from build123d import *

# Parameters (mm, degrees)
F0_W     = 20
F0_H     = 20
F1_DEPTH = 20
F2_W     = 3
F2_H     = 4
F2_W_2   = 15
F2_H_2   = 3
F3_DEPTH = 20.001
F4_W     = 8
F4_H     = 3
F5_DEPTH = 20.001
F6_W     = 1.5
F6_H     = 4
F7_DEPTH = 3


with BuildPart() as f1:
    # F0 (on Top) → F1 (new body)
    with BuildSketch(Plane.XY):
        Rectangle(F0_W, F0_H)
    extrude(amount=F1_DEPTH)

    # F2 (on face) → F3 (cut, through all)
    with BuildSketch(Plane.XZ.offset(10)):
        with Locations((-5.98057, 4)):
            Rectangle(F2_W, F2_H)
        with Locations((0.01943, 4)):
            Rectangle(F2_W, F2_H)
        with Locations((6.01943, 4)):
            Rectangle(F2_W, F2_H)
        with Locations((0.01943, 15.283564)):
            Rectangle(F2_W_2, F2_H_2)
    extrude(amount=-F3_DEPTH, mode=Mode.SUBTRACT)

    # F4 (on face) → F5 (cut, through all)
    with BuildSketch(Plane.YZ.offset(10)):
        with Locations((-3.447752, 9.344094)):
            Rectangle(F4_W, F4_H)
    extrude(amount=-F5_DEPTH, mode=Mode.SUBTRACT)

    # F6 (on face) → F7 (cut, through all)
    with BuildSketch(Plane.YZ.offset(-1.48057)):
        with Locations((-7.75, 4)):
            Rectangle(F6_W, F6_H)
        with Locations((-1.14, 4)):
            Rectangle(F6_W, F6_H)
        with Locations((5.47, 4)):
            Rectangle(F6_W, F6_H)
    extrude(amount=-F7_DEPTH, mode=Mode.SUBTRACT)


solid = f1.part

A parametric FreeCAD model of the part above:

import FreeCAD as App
import Part
import Sketcher
Q = App.Units.Quantity


def add_polygon(sketch, points):
    """Adds a closed chain of lines whose ends are joined by coincident constraints."""
    first, n = sketch.GeometryCount, len(points)
    for a, b in zip(points, points[1:] + points[:1]):
        sketch.addGeometry(Part.LineSegment(App.Vector(*a, 0), App.Vector(*b, 0)), False)
    for i in range(n):
        sketch.addConstraint(Sketcher.Constraint("Coincident", first + i, 2, first + (i + 1) % n, 1))

doc = App.newDocument("Part")
body = doc.addObject("PartDesign::Body", "Body")

# Sketch on XY plane
sketch1 = body.newObject("Sketcher::SketchObject", "Sketch")
sketch1.AttachmentSupport = (doc.getObject("XY_Plane"), [""])
sketch1.MapMode = "FlatFace"
add_polygon(sketch1, [(-10, 10), (-10, -10), (10, -10), (10, 10)])  # lines 0-3
sketch1.addConstraint([
    Sketcher.Constraint("Vertical", 0),
    Sketcher.Constraint("Horizontal", 1),
    Sketcher.Constraint("Vertical", 2),
    Sketcher.Constraint("Horizontal", 3),
    Sketcher.Constraint("Symmetric", 0, 2, 2, 2, -1, 1),
    Sketcher.Constraint("Equal", 3, 0),
    Sketcher.Constraint("DistanceX", 1, 1, 1, 2, Q("20 mm")),
])
pad1 = body.newObject("PartDesign::Pad", "Pad")
pad1.Profile = sketch1
pad1.Length = 20

# Sketch on XZ plane
sketch2 = body.newObject("Sketcher::SketchObject", "Sketch001")
sketch2.AttachmentSupport = (doc.getObject("XZ_Plane"), [""])
sketch2.MapMode = "FlatFace"
sketch2.AttachmentOffset = App.Placement(App.Vector(0, 0, 10), App.Rotation())
add_polygon(sketch2, [(-7.5, 6), (-7.5, 2), (-4.5, 2), (-4.5, 6)])  # lines 0-3
add_polygon(sketch2, [(-1.5, 6), (-1.5, 2), (1.5, 2), (1.5, 6)])  # lines 4-7
add_polygon(sketch2, [(4.5, 6), (4.5, 2), (7.5, 2), (7.5, 6)])  # lines 8-11
add_polygon(sketch2, [(-7.5, 16.8), (-7.5, 13.8), (7.5, 13.8), (7.5, 16.8)])  # lines 12-15
sketch2.addConstraint([
    Sketcher.Constraint("Vertical", 0),
    Sketcher.Constraint("Horizontal", 1),
    Sketcher.Constraint("Vertical", 2),
    Sketcher.Constraint("Horizontal", 3),
    Sketcher.Constraint("Vertical", 4),
    Sketcher.Constraint("Horizontal", 5),
    Sketcher.Constraint("Vertical", 6),
    Sketcher.Constraint("Horizontal", 7),
    Sketcher.Constraint("Vertical", 8),
    Sketcher.Constraint("Horizontal", 9),
    Sketcher.Constraint("Vertical", 10),
    Sketcher.Constraint("Horizontal", 11),
    Sketcher.Constraint("Vertical", 12),
    Sketcher.Constraint("Horizontal", 13),
    Sketcher.Constraint("Vertical", 14),
    Sketcher.Constraint("Horizontal", 15),
    Sketcher.Constraint("Horizontal", 1, 2, 4, 2),
    Sketcher.Constraint("Horizontal", 3, 2, 6, 2),
    Sketcher.Constraint("Horizontal", 5, 2, 8, 2),
    Sketcher.Constraint("Horizontal", 7, 2, 10, 2),
    Sketcher.Constraint("Vertical", 3, 2, 12, 2),
    Sketcher.Constraint("Vertical", 10, 2, 13, 2),
    Sketcher.Constraint("Equal", 3, 5),
    Sketcher.Constraint("Equal", 7, 9),
    Sketcher.Constraint("Equal", 11, 12),
    Sketcher.Constraint("DistanceX", 1, 1, 1, 2, Q("3 mm")),
    Sketcher.Constraint("DistanceX", 13, 1, 13, 2, Q("15 mm")),
    Sketcher.Constraint("DistanceY", 0, 2, 0, 1, Q("4 mm")),
    Sketcher.Constraint("DistanceY", -1, 1, 0, 2, Q("2 mm")),
    Sketcher.Constraint("DistanceX", 1, 2, 4, 2, Q("3 mm")),
    Sketcher.Constraint("DistanceX", 0, 2, -1, 1, Q("7.48057 mm")),
    Sketcher.Constraint("DistanceY", -1, 1, 12, 2, Q("13.783564 mm")),
])
pocket1 = body.newObject("PartDesign::Pocket", "Pocket")
pocket1.Profile = sketch2
pocket1.Type = "ThroughAll"

# Sketch on YZ plane
sketch3 = body.newObject("Sketcher::SketchObject", "Sketch002")
sketch3.AttachmentSupport = (doc.getObject("YZ_Plane"), [""])
sketch3.MapMode = "FlatFace"
sketch3.AttachmentOffset = App.Placement(App.Vector(0, 0, 10), App.Rotation())
add_polygon(sketch3, [(-7.4, 10.8), (-7.4, 7.8), (0.6, 7.8), (0.6, 10.8)])  # lines 0-3
sketch3.addConstraint([
    Sketcher.Constraint("Vertical", 0),
    Sketcher.Constraint("Horizontal", 1),
    Sketcher.Constraint("Vertical", 2),
    Sketcher.Constraint("Horizontal", 3),
    Sketcher.Constraint("DistanceX", 1, 1, 1, 2, Q("8 mm")),
    Sketcher.Constraint("DistanceY", 0, 2, 0, 1, Q("3 mm")),
    Sketcher.Constraint("DistanceX", 0, 2, -1, 1, Q("7.447752 mm")),
    Sketcher.Constraint("DistanceY", -1, 1, 0, 2, Q("7.844094 mm")),
])
pocket2 = body.newObject("PartDesign::Pocket", "Pocket001")
pocket2.Profile = sketch3
pocket2.Type = "ThroughAll"

# Sketch on YZ plane
sketch4 = body.newObject("Sketcher::SketchObject", "Sketch003")
sketch4.AttachmentSupport = (doc.getObject("YZ_Plane"), [""])
sketch4.MapMode = "FlatFace"
sketch4.AttachmentOffset = App.Placement(App.Vector(0, 0, -1.48057), App.Rotation())
add_polygon(sketch4, [(-8.5, 6), (-8.5, 2), (-7, 2), (-7, 6)])  # lines 0-3
add_polygon(sketch4, [(-1.9, 6), (-1.9, 2), (-0.4, 2), (-0.4, 6)])  # lines 4-7
add_polygon(sketch4, [(4.7, 6), (4.7, 2), (6.2, 2), (6.2, 6)])  # lines 8-11
sketch4.addConstraint([
    Sketcher.Constraint("Vertical", 0),
    Sketcher.Constraint("Horizontal", 1),
    Sketcher.Constraint("Vertical", 2),
    Sketcher.Constraint("Horizontal", 3),
    Sketcher.Constraint("Vertical", 4),
    Sketcher.Constraint("Horizontal", 5),
    Sketcher.Constraint("Vertical", 6),
    Sketcher.Constraint("Horizontal", 7),
    Sketcher.Constraint("Vertical", 8),
    Sketcher.Constraint("Horizontal", 9),
    Sketcher.Constraint("Vertical", 10),
    Sketcher.Constraint("Horizontal", 11),
    Sketcher.Constraint("Horizontal", 1, 2, 4, 2),
    Sketcher.Constraint("Horizontal", 3, 2, 6, 2),
    Sketcher.Constraint("Horizontal", 5, 2, 8, 2),
    Sketcher.Constraint("Horizontal", 7, 2, 10, 2),
    Sketcher.Constraint("Equal", 3, 5),
    Sketcher.Constraint("Equal", 7, 9),
    Sketcher.Constraint("DistanceY", 0, 2, 0, 1, Q("4 mm")),
    Sketcher.Constraint("DistanceX", 1, 1, 1, 2, Q("1.5 mm")),
    Sketcher.Constraint("DistanceY", -1, 1, 0, 2, Q("2 mm")),
    Sketcher.Constraint("DistanceX", 1, 2, -1, 1, Q("7 mm")),
    Sketcher.Constraint("DistanceX", 4, 2, -1, 1, Q("1.89 mm")),
    Sketcher.Constraint("DistanceX", -1, 1, 8, 2, Q("4.72 mm")),
])
pocket3 = body.newObject("PartDesign::Pocket", "Pocket002")
pocket3.Profile = sketch4
pocket3.Length = 3

doc.recompute()
